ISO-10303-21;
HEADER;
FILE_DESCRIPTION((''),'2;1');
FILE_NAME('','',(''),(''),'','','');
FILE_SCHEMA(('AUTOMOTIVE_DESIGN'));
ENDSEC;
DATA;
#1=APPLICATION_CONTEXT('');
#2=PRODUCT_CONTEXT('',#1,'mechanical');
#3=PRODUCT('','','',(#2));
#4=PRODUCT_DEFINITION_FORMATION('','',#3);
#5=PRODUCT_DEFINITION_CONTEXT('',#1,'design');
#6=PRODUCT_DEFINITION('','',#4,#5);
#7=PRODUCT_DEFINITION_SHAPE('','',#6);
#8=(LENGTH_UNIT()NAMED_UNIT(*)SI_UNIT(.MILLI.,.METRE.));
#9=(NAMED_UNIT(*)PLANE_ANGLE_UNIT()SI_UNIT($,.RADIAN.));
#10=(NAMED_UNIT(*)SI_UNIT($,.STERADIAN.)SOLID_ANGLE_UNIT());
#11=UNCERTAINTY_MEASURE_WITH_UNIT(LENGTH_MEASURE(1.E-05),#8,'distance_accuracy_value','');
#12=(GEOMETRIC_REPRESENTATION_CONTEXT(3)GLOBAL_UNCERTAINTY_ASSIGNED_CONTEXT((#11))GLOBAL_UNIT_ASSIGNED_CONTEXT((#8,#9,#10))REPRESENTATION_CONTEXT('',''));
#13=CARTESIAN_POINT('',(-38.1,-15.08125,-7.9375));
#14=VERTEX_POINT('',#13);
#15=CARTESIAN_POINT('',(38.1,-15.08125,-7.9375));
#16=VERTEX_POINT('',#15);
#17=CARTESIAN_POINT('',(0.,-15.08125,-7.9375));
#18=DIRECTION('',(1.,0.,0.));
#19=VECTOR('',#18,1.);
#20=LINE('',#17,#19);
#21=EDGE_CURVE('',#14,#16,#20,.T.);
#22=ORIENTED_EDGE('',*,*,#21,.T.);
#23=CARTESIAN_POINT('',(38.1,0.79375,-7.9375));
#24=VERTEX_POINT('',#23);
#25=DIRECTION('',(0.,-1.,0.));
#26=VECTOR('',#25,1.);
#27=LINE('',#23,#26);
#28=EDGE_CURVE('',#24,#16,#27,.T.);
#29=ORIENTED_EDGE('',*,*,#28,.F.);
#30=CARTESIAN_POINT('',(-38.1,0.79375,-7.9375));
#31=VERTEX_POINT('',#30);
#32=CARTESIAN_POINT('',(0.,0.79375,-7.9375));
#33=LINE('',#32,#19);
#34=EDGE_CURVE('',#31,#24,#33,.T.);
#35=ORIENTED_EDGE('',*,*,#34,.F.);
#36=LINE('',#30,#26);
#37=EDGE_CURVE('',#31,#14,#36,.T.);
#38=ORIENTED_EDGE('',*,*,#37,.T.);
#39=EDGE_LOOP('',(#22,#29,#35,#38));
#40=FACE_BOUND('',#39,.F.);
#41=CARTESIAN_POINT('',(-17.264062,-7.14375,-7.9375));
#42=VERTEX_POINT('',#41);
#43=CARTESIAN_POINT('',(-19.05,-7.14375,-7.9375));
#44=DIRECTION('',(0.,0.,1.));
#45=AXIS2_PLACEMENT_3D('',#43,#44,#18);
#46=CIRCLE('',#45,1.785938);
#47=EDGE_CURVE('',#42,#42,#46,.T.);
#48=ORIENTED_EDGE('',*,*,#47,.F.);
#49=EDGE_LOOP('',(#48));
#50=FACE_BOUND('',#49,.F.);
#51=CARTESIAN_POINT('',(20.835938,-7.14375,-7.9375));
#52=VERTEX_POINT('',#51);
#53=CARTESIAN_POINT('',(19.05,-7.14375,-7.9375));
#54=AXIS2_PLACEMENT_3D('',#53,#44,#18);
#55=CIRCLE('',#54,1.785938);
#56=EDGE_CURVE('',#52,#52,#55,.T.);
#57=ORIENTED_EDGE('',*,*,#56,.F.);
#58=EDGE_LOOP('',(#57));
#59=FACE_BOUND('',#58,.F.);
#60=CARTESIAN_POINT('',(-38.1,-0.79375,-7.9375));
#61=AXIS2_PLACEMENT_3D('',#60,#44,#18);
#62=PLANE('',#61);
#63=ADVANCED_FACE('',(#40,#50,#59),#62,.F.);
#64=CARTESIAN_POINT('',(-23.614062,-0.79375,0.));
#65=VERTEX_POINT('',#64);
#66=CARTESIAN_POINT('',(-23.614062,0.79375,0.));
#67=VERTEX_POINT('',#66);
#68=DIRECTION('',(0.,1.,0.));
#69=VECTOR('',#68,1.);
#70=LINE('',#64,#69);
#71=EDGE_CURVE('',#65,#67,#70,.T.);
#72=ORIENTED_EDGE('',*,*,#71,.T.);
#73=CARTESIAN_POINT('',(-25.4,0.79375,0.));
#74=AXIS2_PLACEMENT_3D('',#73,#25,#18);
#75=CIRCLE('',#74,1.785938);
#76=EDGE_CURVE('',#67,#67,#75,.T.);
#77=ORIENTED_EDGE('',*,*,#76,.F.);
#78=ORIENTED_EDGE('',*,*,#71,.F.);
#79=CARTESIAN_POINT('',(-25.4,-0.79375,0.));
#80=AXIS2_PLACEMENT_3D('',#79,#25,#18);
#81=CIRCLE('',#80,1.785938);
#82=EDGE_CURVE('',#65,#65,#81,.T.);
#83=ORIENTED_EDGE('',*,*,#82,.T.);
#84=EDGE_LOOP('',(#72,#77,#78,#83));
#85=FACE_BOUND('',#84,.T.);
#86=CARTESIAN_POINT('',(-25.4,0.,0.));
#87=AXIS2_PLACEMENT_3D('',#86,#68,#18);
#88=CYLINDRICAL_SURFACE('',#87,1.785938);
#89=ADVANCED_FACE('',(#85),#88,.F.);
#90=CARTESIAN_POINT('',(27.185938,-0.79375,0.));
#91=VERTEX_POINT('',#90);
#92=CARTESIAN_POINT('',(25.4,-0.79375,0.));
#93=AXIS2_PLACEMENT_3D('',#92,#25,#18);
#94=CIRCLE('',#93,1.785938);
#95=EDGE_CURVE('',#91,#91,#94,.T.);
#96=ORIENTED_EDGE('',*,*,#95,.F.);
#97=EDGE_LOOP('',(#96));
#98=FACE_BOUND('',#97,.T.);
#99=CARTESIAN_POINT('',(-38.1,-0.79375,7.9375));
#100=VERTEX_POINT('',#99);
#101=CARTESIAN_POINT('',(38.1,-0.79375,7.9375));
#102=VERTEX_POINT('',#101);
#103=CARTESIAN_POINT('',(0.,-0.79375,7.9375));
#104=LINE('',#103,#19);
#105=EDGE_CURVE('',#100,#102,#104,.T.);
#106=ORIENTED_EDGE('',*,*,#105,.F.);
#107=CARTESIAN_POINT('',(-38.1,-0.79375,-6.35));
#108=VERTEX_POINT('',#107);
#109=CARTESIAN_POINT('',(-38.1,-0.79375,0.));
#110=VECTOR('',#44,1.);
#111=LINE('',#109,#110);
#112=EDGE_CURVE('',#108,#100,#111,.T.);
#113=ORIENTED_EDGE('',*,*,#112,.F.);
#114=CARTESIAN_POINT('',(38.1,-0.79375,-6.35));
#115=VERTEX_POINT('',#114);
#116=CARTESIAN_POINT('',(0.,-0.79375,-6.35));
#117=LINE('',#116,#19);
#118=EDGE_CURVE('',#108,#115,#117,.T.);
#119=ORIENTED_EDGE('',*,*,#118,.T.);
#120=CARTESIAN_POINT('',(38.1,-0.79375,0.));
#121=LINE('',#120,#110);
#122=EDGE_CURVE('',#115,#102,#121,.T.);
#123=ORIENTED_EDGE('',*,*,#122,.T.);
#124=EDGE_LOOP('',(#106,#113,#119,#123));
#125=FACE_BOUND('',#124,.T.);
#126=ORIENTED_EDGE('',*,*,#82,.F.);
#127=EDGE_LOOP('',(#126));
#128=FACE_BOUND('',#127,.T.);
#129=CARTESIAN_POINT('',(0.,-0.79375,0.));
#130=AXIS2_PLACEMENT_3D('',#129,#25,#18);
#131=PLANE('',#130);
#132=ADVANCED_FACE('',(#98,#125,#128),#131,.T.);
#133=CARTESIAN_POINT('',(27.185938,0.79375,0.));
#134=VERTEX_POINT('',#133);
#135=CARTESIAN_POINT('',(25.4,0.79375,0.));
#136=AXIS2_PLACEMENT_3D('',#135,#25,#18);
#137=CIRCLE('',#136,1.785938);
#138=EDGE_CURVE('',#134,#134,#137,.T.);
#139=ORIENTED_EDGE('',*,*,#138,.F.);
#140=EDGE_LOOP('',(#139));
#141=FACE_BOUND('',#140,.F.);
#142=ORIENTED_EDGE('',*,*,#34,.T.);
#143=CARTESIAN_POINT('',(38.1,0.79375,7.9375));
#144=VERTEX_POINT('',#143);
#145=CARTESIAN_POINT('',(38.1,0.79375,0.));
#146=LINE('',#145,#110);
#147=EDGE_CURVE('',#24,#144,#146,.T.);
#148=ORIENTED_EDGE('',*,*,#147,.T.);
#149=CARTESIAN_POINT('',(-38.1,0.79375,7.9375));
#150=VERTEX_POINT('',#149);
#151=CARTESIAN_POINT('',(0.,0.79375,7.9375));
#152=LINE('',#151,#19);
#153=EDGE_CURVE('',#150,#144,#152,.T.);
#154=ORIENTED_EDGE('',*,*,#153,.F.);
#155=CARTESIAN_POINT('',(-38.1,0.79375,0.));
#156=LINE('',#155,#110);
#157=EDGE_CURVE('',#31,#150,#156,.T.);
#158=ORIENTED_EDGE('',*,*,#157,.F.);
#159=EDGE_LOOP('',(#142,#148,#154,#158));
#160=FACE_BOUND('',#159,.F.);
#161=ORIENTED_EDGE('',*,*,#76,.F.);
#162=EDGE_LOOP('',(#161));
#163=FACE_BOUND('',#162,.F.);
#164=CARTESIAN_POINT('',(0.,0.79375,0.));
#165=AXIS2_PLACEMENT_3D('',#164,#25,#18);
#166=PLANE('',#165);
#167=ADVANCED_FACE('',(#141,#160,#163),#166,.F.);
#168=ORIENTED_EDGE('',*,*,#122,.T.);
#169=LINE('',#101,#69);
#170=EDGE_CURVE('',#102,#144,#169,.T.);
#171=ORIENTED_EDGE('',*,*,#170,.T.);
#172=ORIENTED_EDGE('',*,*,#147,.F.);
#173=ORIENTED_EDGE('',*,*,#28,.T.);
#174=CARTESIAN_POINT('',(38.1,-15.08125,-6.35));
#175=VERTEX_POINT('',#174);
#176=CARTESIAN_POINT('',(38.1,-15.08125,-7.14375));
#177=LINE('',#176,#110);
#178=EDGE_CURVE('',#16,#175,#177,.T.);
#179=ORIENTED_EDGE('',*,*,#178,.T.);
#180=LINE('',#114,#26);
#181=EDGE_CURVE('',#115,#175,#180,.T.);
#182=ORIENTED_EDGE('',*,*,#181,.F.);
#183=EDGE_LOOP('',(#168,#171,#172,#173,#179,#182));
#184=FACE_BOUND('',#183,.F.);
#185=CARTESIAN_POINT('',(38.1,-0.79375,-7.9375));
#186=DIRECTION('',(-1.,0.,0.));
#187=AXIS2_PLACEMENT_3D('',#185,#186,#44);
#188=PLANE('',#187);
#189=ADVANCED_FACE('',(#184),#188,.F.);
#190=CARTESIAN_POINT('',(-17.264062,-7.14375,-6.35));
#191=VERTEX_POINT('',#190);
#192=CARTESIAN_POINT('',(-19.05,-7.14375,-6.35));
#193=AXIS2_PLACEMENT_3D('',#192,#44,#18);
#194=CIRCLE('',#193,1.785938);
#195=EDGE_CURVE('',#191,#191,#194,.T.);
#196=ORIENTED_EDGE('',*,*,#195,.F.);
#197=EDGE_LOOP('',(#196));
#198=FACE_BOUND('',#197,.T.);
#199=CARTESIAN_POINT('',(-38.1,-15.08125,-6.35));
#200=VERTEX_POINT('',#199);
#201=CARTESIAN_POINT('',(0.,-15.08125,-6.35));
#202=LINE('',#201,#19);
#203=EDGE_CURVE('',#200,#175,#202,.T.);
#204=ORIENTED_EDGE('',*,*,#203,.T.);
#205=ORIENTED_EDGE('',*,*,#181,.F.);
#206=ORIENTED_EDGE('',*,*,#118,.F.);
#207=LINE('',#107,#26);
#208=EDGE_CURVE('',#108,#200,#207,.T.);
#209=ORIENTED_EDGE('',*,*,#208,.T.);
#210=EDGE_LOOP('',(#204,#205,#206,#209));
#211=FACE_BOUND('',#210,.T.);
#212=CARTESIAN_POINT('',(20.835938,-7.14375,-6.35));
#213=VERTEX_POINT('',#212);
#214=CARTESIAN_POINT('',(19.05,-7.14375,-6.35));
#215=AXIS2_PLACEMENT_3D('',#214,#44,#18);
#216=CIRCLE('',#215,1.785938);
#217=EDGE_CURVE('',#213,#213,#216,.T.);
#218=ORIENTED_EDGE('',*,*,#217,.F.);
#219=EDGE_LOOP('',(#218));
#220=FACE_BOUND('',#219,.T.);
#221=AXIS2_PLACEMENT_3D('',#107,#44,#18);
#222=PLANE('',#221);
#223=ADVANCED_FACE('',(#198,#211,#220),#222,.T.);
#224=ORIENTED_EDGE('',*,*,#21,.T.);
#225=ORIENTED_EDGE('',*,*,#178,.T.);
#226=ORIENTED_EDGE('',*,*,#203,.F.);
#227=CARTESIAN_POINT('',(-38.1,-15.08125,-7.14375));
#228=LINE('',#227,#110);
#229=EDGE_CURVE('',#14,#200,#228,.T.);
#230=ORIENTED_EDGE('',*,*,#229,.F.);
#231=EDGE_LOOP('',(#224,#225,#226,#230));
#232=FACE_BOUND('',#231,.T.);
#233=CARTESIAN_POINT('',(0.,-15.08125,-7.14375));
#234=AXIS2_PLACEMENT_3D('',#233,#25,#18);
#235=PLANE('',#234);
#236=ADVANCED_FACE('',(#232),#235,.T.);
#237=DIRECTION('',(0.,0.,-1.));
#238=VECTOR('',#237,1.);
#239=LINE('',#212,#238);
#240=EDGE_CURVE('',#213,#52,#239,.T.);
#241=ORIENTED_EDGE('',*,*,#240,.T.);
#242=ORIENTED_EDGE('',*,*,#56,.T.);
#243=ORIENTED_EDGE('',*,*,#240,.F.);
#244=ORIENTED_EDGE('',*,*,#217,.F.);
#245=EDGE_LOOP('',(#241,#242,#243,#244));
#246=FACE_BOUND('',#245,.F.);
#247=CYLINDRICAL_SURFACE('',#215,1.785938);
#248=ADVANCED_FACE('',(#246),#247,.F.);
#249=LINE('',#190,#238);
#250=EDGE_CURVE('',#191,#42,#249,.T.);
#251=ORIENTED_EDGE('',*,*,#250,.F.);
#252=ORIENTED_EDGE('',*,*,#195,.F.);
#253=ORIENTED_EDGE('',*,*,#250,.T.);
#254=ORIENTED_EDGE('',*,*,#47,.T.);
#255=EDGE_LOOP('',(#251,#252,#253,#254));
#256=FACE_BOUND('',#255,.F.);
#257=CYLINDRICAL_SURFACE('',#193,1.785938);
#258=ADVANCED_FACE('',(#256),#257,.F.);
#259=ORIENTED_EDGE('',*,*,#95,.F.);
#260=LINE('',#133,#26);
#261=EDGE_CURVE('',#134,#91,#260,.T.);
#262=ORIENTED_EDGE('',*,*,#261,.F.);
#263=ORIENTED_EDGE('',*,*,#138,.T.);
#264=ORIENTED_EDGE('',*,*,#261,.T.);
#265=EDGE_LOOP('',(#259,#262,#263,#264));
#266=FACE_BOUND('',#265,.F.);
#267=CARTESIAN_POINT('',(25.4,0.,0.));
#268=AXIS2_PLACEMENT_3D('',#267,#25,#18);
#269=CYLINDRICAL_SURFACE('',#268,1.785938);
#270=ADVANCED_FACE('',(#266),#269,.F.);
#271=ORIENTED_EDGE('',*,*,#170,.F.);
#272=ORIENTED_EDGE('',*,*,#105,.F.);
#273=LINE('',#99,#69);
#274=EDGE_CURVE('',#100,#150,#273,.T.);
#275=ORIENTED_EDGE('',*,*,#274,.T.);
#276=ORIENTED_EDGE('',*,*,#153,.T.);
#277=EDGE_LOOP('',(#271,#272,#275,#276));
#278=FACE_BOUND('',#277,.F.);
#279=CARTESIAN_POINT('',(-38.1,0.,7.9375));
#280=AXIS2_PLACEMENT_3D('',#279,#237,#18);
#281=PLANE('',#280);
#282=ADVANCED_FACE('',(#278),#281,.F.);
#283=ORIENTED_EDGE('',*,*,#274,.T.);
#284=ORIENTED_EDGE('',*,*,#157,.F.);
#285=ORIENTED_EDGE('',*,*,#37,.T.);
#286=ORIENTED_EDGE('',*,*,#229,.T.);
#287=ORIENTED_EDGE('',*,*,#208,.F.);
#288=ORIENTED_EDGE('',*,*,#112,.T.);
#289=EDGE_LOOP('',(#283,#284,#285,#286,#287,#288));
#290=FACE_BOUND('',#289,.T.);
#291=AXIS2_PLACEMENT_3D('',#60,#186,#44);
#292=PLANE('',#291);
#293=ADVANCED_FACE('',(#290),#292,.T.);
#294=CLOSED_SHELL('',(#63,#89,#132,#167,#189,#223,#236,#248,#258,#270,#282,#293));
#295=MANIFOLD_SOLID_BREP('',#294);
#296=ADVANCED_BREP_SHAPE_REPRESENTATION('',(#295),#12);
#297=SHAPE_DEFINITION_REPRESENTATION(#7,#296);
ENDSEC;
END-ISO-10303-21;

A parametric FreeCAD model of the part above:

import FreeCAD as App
import Part
import Sketcher
Q = App.Units.Quantity

doc = App.newDocument("Part")
body = doc.addObject("PartDesign::Body", "Body")

# Sketch on XZ plane
sketch1 = body.newObject("Sketcher::SketchObject", "Sketch")
sketch1.AttachmentSupport = (doc.getObject("XZ_Plane"), [""])
sketch1.MapMode = "FlatFace"
sketch1.addGeometry([
    Part.LineSegment(App.Vector(-38, 8, 0), App.Vector(-38, -8, 0)),
    Part.LineSegment(App.Vector(-38, -8, 0), App.Vector(38, -8, 0)),
    Part.LineSegment(App.Vector(38, -8, 0), App.Vector(38, 8, 0)),
    Part.LineSegment(App.Vector(38, 8, 0), App.Vector(-38, 8, 0)),
], False)
sketch1.addConstraint([
    Sketcher.Constraint("Coincident", 0, 2, 1, 1),
    Sketcher.Constraint("Coincident", 1, 2, 2, 1),
    Sketcher.Constraint("Coincident", 2, 2, 3, 1),
    Sketcher.Constraint("Coincident", 3, 2, 0, 1),
    Sketcher.Constraint("Vertical", 0),
    Sketcher.Constraint("Horizontal", 1),
    Sketcher.Constraint("Vertical", 2),
    Sketcher.Constraint("Horizontal", 3),
    Sketcher.Constraint("Symmetric", 0, 2, 2, 2, -1, 1),
    Sketcher.Constraint("DistanceX", 1, 1, 1, 2, Q("3 in")),
    Sketcher.Constraint("DistanceY", 0, 2, 0, 1, Q("0.625 in")),
])
pad1 = body.newObject("PartDesign::Pad", "Pad")
pad1.Profile = sketch1
pad1.Length = Q("0.0625 in")
pad1.Midplane = True

# Sketch on XZ plane
sketch2 = body.newObject("Sketcher::SketchObject", "Sketch001")
sketch2.AttachmentSupport = (doc.getObject("XZ_Plane"), [""])
sketch2.MapMode = "FlatFace"
sketch2.addGeometry([
    Part.Circle(App.Vector(-25.4, 0, 0), App.Vector(0, 0, 1), 1.8),
    Part.Circle(App.Vector(25.4, 0, 0), App.Vector(0, 0, 1), 1.8),
], False)
sketch2.addConstraint([
    Sketcher.Constraint("Equal", 0, 1),
    Sketcher.Constraint("Symmetric", 0, 3, 1, 3, -1, 1),
    Sketcher.Constraint("PointOnObject", 0, 3, -1),
    Sketcher.Constraint("Diameter", 0, Q("0.140625 in")),
    Sketcher.Constraint("DistanceX", 0, 3, -1, 1, Q("1 in")),
])
pocket1 = body.newObject("PartDesign::Pocket", "Pocket")
pocket1.Profile = sketch2
pocket1.Length = Q("0.0625 in")
pocket1.Midplane = True

# Sketch on XZ plane
sketch3 = body.newObject("Sketcher::SketchObject", "Sketch002")
sketch3.AttachmentSupport = (doc.getObject("XZ_Plane"), [""])
sketch3.MapMode = "FlatFace"
sketch3.AttachmentOffset = App.Placement(App.Vector(0, 0, 0.03125 * 25.4), App.Rotation())
sketch3.addGeometry([
    Part.LineSegment(App.Vector(-38.1, -6.3, 0), App.Vector(-38.1, -7.9, 0)),
    Part.LineSegment(App.Vector(-38.1, -7.9, 0), App.Vector(38.1, -7.9, 0)),
    Part.LineSegment(App.Vector(38.1, -7.9, 0), App.Vector(38.1, -6.3, 0)),
    Part.LineSegment(App.Vector(38.1, -6.3, 0), App.Vector(-38.1, -6.3, 0)),
], False)
sketch3.addConstraint([
    Sketcher.Constraint("Coincident", 0, 2, 1, 1),
    Sketcher.Constraint("Coincident", 1, 2, 2, 1),
    Sketcher.Constraint("Coincident", 2, 2, 3, 1),
    Sketcher.Constraint("Coincident", 3, 2, 0, 1),
    Sketcher.Constraint("Vertical", 0),
    Sketcher.Constraint("Horizontal", 1),
    Sketcher.Constraint("Vertical", 2),
    Sketcher.Constraint("Horizontal", 3),
    Sketcher.Constraint("DistanceX", 1, 1, 1, 2, Q("3 in")),
    Sketcher.Constraint("DistanceX", 0, 2, -1, 1, Q("1.5 in")),
    Sketcher.Constraint("DistanceY", 0, 2, 0, 1, Q("0.0625 in")),
    Sketcher.Constraint("DistanceY", 2, 2, -1, 1, Q("0.25 in")),
])
pad2 = body.newObject("PartDesign::Pad", "Pad001")
pad2.Profile = sketch3
pad2.Length = Q("0.5625 in")

# Sketch on XY plane
sketch4 = body.newObject("Sketcher::SketchObject", "Sketch003")
sketch4.AttachmentSupport = (doc.getObject("XY_Plane"), [""])
sketch4.MapMode = "FlatFace"
sketch4.AttachmentOffset = App.Placement(App.Vector(0, 0, -0.25 * 25.4), App.Rotation())
sketch4.addGeometry([
    Part.Circle(App.Vector(-19.1, -7.1, 0), App.Vector(0, 0, 1), 1.8),
    Part.Circle(App.Vector(19.1, -7.1, 0), App.Vector(0, 0, 1), 1.8),
], False)
sketch4.addConstraint([
    Sketcher.Constraint("Equal", 0, 1),
    Sketcher.Constraint("Symmetric", 0, 3, 1, 3, -2),
    Sketcher.Constraint("Diameter", 0, Q("0.140625 in")),
    Sketcher.Constraint("DistanceX", 0, 3, 1, 3, Q("1.5 in")),
    Sketcher.Constraint("DistanceY", 0, 3, -1, 1, Q("0.28125 in")),
])
pocket2 = body.newObject("PartDesign::Pocket", "Pocket001")
pocket2.Profile = sketch4
pocket2.Type = "ThroughAll"

doc.recompute()
